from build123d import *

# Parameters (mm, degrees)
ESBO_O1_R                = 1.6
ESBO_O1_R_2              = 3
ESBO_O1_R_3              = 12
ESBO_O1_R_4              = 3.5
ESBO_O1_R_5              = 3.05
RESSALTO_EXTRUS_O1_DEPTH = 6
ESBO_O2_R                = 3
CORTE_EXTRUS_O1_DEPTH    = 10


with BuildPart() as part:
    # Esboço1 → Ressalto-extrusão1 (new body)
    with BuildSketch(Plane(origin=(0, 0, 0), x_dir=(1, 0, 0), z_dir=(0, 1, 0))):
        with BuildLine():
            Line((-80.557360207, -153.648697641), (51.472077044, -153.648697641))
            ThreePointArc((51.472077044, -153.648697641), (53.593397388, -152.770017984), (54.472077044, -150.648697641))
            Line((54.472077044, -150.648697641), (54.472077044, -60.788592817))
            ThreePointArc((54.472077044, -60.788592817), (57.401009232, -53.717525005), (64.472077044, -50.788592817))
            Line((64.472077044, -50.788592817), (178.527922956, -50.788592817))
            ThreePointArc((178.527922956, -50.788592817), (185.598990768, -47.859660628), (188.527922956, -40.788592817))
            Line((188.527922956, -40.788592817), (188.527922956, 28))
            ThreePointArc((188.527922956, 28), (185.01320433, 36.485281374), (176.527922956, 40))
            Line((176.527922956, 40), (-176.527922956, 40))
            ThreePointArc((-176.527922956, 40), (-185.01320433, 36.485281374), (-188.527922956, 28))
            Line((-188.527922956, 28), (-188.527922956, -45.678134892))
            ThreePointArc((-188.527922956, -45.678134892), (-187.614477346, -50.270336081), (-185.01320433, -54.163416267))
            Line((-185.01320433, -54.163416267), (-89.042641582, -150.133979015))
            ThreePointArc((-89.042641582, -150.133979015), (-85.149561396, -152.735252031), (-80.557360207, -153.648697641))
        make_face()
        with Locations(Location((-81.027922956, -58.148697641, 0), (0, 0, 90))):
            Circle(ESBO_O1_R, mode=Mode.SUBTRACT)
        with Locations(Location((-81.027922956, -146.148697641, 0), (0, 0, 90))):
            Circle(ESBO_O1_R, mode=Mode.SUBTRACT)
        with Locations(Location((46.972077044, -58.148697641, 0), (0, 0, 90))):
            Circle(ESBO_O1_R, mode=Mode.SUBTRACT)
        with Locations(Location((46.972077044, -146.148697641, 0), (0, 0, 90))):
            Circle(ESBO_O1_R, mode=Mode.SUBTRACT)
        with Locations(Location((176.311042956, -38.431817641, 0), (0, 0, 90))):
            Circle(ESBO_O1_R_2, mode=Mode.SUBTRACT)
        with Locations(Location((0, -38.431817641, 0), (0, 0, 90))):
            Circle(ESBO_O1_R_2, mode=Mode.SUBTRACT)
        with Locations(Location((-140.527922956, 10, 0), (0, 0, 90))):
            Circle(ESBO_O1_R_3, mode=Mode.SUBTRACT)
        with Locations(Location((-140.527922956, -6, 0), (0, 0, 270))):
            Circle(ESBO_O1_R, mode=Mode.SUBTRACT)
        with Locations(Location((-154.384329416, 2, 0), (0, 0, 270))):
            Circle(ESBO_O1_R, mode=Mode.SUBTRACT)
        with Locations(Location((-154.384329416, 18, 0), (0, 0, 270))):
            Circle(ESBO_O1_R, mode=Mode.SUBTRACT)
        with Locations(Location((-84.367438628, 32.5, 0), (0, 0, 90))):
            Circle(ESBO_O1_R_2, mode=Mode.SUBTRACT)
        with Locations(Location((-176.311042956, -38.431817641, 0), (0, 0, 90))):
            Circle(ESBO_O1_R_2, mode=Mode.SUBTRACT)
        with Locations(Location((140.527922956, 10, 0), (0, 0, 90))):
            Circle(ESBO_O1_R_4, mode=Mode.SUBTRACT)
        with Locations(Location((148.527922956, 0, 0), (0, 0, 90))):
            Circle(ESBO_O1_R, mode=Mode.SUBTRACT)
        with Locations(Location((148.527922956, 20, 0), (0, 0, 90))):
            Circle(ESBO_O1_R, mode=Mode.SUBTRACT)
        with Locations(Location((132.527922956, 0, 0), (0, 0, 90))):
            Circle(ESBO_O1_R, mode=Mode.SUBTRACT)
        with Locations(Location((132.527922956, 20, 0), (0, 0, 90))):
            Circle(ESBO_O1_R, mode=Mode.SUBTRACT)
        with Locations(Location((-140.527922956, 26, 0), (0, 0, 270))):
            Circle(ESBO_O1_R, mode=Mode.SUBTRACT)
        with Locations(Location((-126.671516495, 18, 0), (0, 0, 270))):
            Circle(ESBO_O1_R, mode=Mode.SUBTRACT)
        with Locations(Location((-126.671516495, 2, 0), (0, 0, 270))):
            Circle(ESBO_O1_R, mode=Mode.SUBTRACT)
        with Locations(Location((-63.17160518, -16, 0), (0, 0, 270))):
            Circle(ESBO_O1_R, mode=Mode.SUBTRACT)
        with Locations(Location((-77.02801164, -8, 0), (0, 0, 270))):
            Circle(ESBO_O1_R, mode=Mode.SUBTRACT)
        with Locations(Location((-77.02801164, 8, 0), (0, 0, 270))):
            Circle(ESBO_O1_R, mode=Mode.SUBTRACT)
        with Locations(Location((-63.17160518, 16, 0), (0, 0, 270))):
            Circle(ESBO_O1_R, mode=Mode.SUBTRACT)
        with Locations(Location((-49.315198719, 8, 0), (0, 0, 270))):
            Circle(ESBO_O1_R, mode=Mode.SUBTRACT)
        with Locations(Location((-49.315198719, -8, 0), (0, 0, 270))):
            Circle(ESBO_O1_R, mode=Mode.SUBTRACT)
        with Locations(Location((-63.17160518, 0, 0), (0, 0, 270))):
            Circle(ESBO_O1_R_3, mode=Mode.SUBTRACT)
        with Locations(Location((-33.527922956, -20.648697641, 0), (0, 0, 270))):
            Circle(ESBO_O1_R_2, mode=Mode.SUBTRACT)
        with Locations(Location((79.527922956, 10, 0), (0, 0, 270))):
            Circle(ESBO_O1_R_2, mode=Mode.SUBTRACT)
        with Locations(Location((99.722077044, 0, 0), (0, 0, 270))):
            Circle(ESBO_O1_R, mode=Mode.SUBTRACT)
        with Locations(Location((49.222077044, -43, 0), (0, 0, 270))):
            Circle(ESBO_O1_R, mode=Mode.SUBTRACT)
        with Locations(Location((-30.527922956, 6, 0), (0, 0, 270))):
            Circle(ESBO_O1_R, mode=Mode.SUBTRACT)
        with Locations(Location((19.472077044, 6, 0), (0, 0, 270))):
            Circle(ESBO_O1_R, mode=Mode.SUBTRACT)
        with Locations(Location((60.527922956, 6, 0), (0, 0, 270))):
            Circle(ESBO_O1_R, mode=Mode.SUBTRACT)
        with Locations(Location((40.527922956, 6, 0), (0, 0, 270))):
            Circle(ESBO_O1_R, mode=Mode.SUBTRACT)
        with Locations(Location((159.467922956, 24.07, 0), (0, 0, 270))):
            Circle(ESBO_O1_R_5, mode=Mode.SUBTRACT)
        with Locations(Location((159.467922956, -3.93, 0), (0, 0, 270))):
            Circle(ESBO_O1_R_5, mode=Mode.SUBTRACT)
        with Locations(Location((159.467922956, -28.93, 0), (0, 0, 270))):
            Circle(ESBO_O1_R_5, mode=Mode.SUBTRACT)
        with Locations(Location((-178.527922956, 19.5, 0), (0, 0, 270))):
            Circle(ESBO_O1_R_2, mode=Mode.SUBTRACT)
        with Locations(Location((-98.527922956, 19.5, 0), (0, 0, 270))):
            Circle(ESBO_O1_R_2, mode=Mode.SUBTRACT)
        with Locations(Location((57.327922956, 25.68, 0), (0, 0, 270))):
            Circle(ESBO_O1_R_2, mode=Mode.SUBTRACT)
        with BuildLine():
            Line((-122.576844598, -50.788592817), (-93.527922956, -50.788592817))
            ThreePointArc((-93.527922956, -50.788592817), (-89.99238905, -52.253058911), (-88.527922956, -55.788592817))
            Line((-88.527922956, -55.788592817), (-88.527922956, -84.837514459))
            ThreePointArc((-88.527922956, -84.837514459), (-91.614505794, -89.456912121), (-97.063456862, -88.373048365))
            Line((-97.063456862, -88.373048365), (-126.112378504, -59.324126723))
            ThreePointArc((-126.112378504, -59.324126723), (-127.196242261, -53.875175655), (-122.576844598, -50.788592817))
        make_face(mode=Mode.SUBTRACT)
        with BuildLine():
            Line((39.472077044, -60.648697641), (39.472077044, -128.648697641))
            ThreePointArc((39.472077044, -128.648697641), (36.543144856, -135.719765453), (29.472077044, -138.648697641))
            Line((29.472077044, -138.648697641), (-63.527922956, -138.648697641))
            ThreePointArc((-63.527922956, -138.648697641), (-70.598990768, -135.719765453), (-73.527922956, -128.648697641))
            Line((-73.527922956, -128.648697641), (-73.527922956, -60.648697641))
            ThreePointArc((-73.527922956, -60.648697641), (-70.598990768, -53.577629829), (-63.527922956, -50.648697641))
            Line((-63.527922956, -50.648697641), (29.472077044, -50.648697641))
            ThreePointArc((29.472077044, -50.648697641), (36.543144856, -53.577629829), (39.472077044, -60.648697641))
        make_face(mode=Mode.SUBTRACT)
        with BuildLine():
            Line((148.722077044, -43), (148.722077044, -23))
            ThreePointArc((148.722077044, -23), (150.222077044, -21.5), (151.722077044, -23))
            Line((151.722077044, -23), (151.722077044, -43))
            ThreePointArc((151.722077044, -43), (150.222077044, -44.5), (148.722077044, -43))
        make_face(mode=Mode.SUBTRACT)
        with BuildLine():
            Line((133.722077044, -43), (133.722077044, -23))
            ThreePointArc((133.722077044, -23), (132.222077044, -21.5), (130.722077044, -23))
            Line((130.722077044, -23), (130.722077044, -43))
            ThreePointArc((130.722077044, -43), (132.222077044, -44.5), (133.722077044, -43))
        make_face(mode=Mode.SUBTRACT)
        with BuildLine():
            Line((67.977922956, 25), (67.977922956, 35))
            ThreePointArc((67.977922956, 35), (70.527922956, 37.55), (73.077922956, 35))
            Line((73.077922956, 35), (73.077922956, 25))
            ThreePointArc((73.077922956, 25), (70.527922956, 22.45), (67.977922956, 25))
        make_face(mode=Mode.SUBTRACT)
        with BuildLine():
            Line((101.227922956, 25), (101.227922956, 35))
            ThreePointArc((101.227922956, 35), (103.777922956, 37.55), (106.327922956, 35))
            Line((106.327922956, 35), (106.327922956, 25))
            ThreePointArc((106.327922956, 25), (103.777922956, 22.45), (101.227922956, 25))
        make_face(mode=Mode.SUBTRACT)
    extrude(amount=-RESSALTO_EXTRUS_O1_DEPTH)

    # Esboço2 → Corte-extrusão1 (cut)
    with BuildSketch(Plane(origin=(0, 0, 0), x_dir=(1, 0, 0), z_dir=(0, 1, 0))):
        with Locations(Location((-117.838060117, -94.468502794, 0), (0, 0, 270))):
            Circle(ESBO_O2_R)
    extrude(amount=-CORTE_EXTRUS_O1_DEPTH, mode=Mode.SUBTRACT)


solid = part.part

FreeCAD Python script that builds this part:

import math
import FreeCAD as App
import Part
import Sketcher
from FreeCAD import Vector
Q = App.Units.Quantity

doc = App.newDocument("Part")
body = doc.addObject("PartDesign::Body", "Body")

# Sketch on XZ plane
sketch1 = body.newObject("Sketcher::SketchObject", "Sketch")
sketch1.AttachmentSupport = (doc.getObject("XZ_Plane"), [""])
sketch1.MapMode = "FlatFace"
sketch1.addGeometry(Part.LineSegment(Vector(-80.6, 153.6, 0), Vector(51.5, 153.6, 0)), False)
sketch1.addGeometry(Part.ArcOfCircle(Part.Circle(Vector(51.5, 150.6, 0), Vector(0, 0, 1), 3), math.radians(0), math.radians(90)), False)
sketch1.addGeometry(Part.LineSegment(Vector(54.5, 150.6, 0), Vector(54.5, 60.8, 0)), False)
sketch1.addGeometry(Part.ArcOfCircle(Part.Circle(Vector(64.5, 60.8, 0), Vector(0, 0, 1), 10), math.radians(180), math.radians(270)), False)
sketch1.addGeometry(Part.LineSegment(Vector(64.5, 50.8, 0), Vector(178.5, 50.8, 0)), False)
sketch1.addGeometry(Part.ArcOfCircle(Part.Circle(Vector(178.5, 40.8, 0), Vector(0, 0, 1), 10), math.radians(0), math.radians(90)), False)
sketch1.addGeometry(Part.LineSegment(Vector(188.5, 40.8, 0), Vector(188.5, -28, 0)), False)
sketch1.addGeometry(Part.ArcOfCircle(Part.Circle(Vector(176.5, -28, 0), Vector(0, 0, 1), 12), math.radians(-90), math.radians(0)), False)
sketch1.addGeometry(Part.LineSegment(Vector(176.5, -40, 0), Vector(-176.5, -40, 0)), False)
sketch1.addGeometry(Part.ArcOfCircle(Part.Circle(Vector(-176.5, -28, 0), Vector(0, 0, 1), 12), math.radians(-180), math.radians(-90)), False)
sketch1.addGeometry(Part.LineSegment(Vector(-188.5, -28, 0), Vector(-188.5, 45.7, 0)), False)
sketch1.addGeometry(Part.ArcOfCircle(Part.Circle(Vector(-176.5, 45.7, 0), Vector(0, 0, 1), 12), math.radians(135), math.radians(180)), False)
sketch1.addGeometry(Part.LineSegment(Vector(-185, 54.2, 0), Vector(-89, 150.1, 0)), False)
sketch1.addGeometry(Part.ArcOfCircle(Part.Circle(Vector(-80.6, 141.6, 0), Vector(0, 0, 1), 12), math.radians(90), math.radians(135)), False)
sketch1.addGeometry(Part.Circle(Vector(-81, 146.1, 0), Vector(0, 0, 1), 1.6), False)
sketch1.addGeometry(Part.ArcOfCircle(Part.Circle(Vector(-122.6, 55.8, 0), Vector(0, 0, 1), 5), math.radians(135), math.radians(270)), False)
sketch1.addGeometry(Part.LineSegment(Vector(-122.6, 50.8, 0), Vector(-93.5, 50.8, 0)), False)
sketch1.addGeometry(Part.ArcOfCircle(Part.Circle(Vector(-93.5, 55.8, 0), Vector(0, 0, 1), 5), math.radians(-90), math.radians(0)), False)
sketch1.addGeometry(Part.LineSegment(Vector(-88.5, 55.8, 0), Vector(-88.5, 84.8, 0)), False)
sketch1.addGeometry(Part.ArcOfCircle(Part.Circle(Vector(-93.5, 84.8, 0), Vector(0, 0, 1), 5), math.radians(0), math.radians(135)), False)
sketch1.addGeometry(Part.LineSegment(Vector(-97.1, 88.4, 0), Vector(-126.1, 59.3, 0)), False)
sketch1.addGeometry(Part.ArcOfCircle(Part.Circle(Vector(29.5, 60.6, 0), Vector(0, 0, 1), 10), math.radians(-90), math.radians(0)), False)
sketch1.addGeometry(Part.LineSegment(Vector(39.5, 60.6, 0), Vector(39.5, 128.6, 0)), False)
sketch1.addGeometry(Part.ArcOfCircle(Part.Circle(Vector(29.5, 128.6, 0), Vector(0, 0, 1), 10), math.radians(0), math.radians(90)), False)
sketch1.addGeometry(Part.LineSegment(Vector(29.5, 138.6, 0), Vector(-63.5, 138.6, 0)), False)
sketch1.addGeometry(Part.ArcOfCircle(Part.Circle(Vector(-63.5, 128.6, 0), Vector(0, 0, 1), 10), math.radians(90), math.radians(180)), False)
sketch1.addGeometry(Part.LineSegment(Vector(-73.5, 128.6, 0), Vector(-73.5, 60.6, 0)), False)
sketch1.addGeometry(Part.ArcOfCircle(Part.Circle(Vector(-63.5, 60.6, 0), Vector(0, 0, 1), 10), math.radians(180), math.radians(270)), False)
sketch1.addGeometry(Part.LineSegment(Vector(-63.5, 50.6, 0), Vector(29.5, 50.6, 0)), False)
sketch1.addGeometry(Part.Circle(Vector(-81, 58.1, 0), Vector(0, 0, 1), 1.6), False)
sketch1.addGeometry(Part.Circle(Vector(47, 146.1, 0), Vector(0, 0, 1), 1.6), False)
sketch1.addGeometry(Part.Circle(Vector(47, 58.1, 0), Vector(0, 0, 1), 1.6), False)
sketch1.addGeometry(Part.Circle(Vector(-176.3, 38.4, 0), Vector(0, 0, 1), 3), False)
sketch1.addGeometry(Part.Circle(Vector(-63.2, 16, 0), Vector(0, 0, 1), 1.6), False)
sketch1.addGeometry(Part.Circle(Vector(-33.5, 20.6, 0), Vector(0, 0, 1), 3), False)
sketch1.addGeometry(Part.Circle(Vector(-140.5, 6, 0), Vector(0, 0, 1), 1.6), False)
sketch1.addGeometry(Part.Circle(Vector(-154.4, -2, 0), Vector(0, 0, 1), 1.6), False)
sketch1.addGeometry(Part.Circle(Vector(-140.5, -10, 0), Vector(0, 0, 1), 12), False)
sketch1.addGeometry(Part.Circle(Vector(-126.7, -2, 0), Vector(0, 0, 1), 1.6), False)
sketch1.addGeometry(Part.Circle(Vector(-178.5, -19.5, 0), Vector(0, 0, 1), 3), False)
sketch1.addGeometry(Part.Circle(Vector(-154.4, -18, 0), Vector(0, 0, 1), 1.6), False)
sketch1.addGeometry(Part.Circle(Vector(-140.5, -26, 0), Vector(0, 0, 1), 1.6), False)
sketch1.addGeometry(Part.Circle(Vector(-126.7, -18, 0), Vector(0, 0, 1), 1.6), False)
sketch1.addGeometry(Part.Circle(Vector(-98.5, -19.5, 0), Vector(0, 0, 1), 3), False)
sketch1.addGeometry(Part.Circle(Vector(-77, 8, 0), Vector(0, 0, 1), 1.6), False)
sketch1.addGeometry(Part.Circle(Vector(-49.3, 8, 0), Vector(0, 0, 1), 1.6), False)
sketch1.addGeometry(Part.Circle(Vector(-63.2, 0, 0), Vector(0, 0, 1), 12), False)
sketch1.addGeometry(Part.Circle(Vector(-77, -8, 0), Vector(0, 0, 1), 1.6), False)
sketch1.addGeometry(Part.Circle(Vector(-49.3, -8, 0), Vector(0, 0, 1), 1.6), False)
sketch1.addGeometry(Part.Circle(Vector(-30.5, -6, 0), Vector(0, 0, 1), 1.6), False)
sketch1.addGeometry(Part.Circle(Vector(-63.2, -16, 0), Vector(0, 0, 1), 1.6), False)
sketch1.addGeometry(Part.Circle(Vector(-84.4, -32.5, 0), Vector(0, 0, 1), 3), False)
sketch1.addGeometry(Part.Circle(Vector(0, 38.4, 0), Vector(0, 0, 1), 3), False)
sketch1.addGeometry(Part.Circle(Vector(49.2, 43, 0), Vector(0, 0, 1), 1.6), False)
sketch1.addGeometry(Part.LineSegment(Vector(133.7, 23, 0), Vector(133.7, 43, 0)), False)
sketch1.addGeometry(Part.ArcOfCircle(Part.Circle(Vector(132.2, 43, 0), Vector(0, 0, 1), 1.5), math.radians(0), math.radians(180)), False)
sketch1.addGeometry(Part.LineSegment(Vector(130.7, 43, 0), Vector(130.7, 23, 0)), False)
sketch1.addGeometry(Part.ArcOfCircle(Part.Circle(Vector(132.2, 23, 0), Vector(0, 0, 1), 1.5), math.radians(180), math.radians(360)), False)
sketch1.addGeometry(Part.ArcOfCircle(Part.Circle(Vector(150.2, 43, 0), Vector(0, 0, 1), 1.5), math.radians(0), math.radians(180)), False)
sketch1.addGeometry(Part.LineSegment(Vector(148.7, 43, 0), Vector(148.7, 23, 0)), False)
sketch1.addGeometry(Part.ArcOfCircle(Part.Circle(Vector(150.2, 23, 0), Vector(0, 0, 1), 1.5), math.radians(180), math.radians(360)), False)
sketch1.addGeometry(Part.LineSegment(Vector(151.7, 23, 0), Vector(151.7, 43, 0)), False)
sketch1.addGeometry(Part.Circle(Vector(176.3, 38.4, 0), Vector(0, 0, 1), 3), False)
sketch1.addGeometry(Part.Circle(Vector(159.5, 28.9, 0), Vector(0, 0, 1), 3), False)
sketch1.addGeometry(Part.Circle(Vector(19.5, -6, 0), Vector(0, 0, 1), 1.6), False)
sketch1.addGeometry(Part.Circle(Vector(40.5, -6, 0), Vector(0, 0, 1), 1.6), False)
sketch1.addGeometry(Part.Circle(Vector(60.5, -6, 0), Vector(0, 0, 1), 1.6), False)
sketch1.addGeometry(Part.Circle(Vector(79.5, -10, 0), Vector(0, 0, 1), 3), False)
sketch1.addGeometry(Part.Circle(Vector(57.3, -25.7, 0), Vector(0, 0, 1), 3), False)
sketch1.addGeometry(Part.ArcOfCircle(Part.Circle(Vector(70.5, -25, 0), Vector(0, 0, 1), 2.5), math.radians(0), math.radians(180)), False)
sketch1.addGeometry(Part.LineSegment(Vector(68, -25, 0), Vector(68, -35, 0)), False)
sketch1.addGeometry(Part.ArcOfCircle(Part.Circle(Vector(70.5, -35, 0), Vector(0, 0, 1), 2.5), math.radians(180), math.radians(360)), False)
sketch1.addGeometry(Part.LineSegment(Vector(73.1, -35, 0), Vector(73.1, -25, 0)), False)
sketch1.addGeometry(Part.Circle(Vector(99.7, 0, 0), Vector(0, 0, 1), 1.6), False)
sketch1.addGeometry(Part.Circle(Vector(132.5, 0, 0), Vector(0, 0, 1), 1.6), False)
sketch1.addGeometry(Part.Circle(Vector(148.5, 0, 0), Vector(0, 0, 1), 1.6), False)
sketch1.addGeometry(Part.Circle(Vector(159.5, 3.9, 0), Vector(0, 0, 1), 3), False)
sketch1.addGeometry(Part.Circle(Vector(140.5, -10, 0), Vector(0, 0, 1), 3.5), False)
sketch1.addGeometry(Part.Circle(Vector(132.5, -20, 0), Vector(0, 0, 1), 1.6), False)
sketch1.addGeometry(Part.ArcOfCircle(Part.Circle(Vector(103.8, -25, 0), Vector(0, 0, 1), 2.5), math.radians(0), math.radians(180)), False)
sketch1.addGeometry(Part.LineSegment(Vector(101.2, -25, 0), Vector(101.2, -35, 0)), False)
sketch1.addGeometry(Part.ArcOfCircle(Part.Circle(Vector(103.8, -35, 0), Vector(0, 0, 1), 2.5), math.radians(180), math.radians(360)), False)
sketch1.addGeometry(Part.LineSegment(Vector(106.3, -35, 0), Vector(106.3, -25, 0)), False)
sketch1.addGeometry(Part.Circle(Vector(148.5, -20, 0), Vector(0, 0, 1), 1.6), False)
sketch1.addGeometry(Part.Circle(Vector(159.5, -24.1, 0), Vector(0, 0, 1), 3), False)
sketch1.addConstraint(Sketcher.Constraint("Tangent", 0, 2, 1, 2))
sketch1.addConstraint(Sketcher.Constraint("Tangent", 1, 1, 2, 1))
sketch1.addConstraint(Sketcher.Constraint("Tangent", 2, 2, 3, 1))
sketch1.addConstraint(Sketcher.Constraint("Tangent", 3, 2, 4, 1))
sketch1.addConstraint(Sketcher.Constraint("Tangent", 4, 2, 5, 2))
sketch1.addConstraint(Sketcher.Constraint("Tangent", 5, 1, 6, 1))
sketch1.addConstraint(Sketcher.Constraint("Tangent", 6, 2, 7, 2))
sketch1.addConstraint(Sketcher.Constraint("Tangent", 7, 1, 8, 1))
sketch1.addConstraint(Sketcher.Constraint("Tangent", 8, 2, 9, 2))
sketch1.addConstraint(Sketcher.Constraint("Tangent", 9, 1, 10, 1))
sketch1.addConstraint(Sketcher.Constraint("Tangent", 10, 2, 11, 2))
sketch1.addConstraint(Sketcher.Constraint("Tangent", 11, 1, 12, 1))
sketch1.addConstraint(Sketcher.Constraint("Tangent", 12, 2, 13, 2))
sketch1.addConstraint(Sketcher.Constraint("Tangent", 13, 1, 0, 1))
sketch1.addConstraint(Sketcher.Constraint("Tangent", 15, 2, 16, 1))
sketch1.addConstraint(Sketcher.Constraint("Tangent", 16, 2, 17, 1))
sketch1.addConstraint(Sketcher.Constraint("Tangent", 17, 2, 18, 1))
sketch1.addConstraint(Sketcher.Constraint("Tangent", 18, 2, 19, 1))
sketch1.addConstraint(Sketcher.Constraint("Tangent", 19, 2, 20, 1))
sketch1.addConstraint(Sketcher.Constraint("Tangent", 20, 2, 15, 1))
sketch1.addConstraint(Sketcher.Constraint("Tangent", 21, 2, 22, 1))
sketch1.addConstraint(Sketcher.Constraint("Tangent", 22, 2, 23, 1))
sketch1.addConstraint(Sketcher.Constraint("Tangent", 23, 2, 24, 1))
sketch1.addConstraint(Sketcher.Constraint("Tangent", 24, 2, 25, 1))
sketch1.addConstraint(Sketcher.Constraint("Tangent", 25, 2, 26, 1))
sketch1.addConstraint(Sketcher.Constraint("Tangent", 26, 2, 27, 1))
sketch1.addConstraint(Sketcher.Constraint("Tangent", 27, 2, 28, 1))
sketch1.addConstraint(Sketcher.Constraint("Tangent", 28, 2, 21, 1))
sketch1.addConstraint(Sketcher.Constraint("Tangent", 54, 2, 55, 1))
sketch1.addConstraint(Sketcher.Constraint("Tangent", 55, 2, 56, 1))
sketch1.addConstraint(Sketcher.Constraint("Tangent", 56, 2, 57, 1))
sketch1.addConstraint(Sketcher.Constraint("Tangent", 57, 2, 54, 1))
sketch1.addConstraint(Sketcher.Constraint("Tangent", 58, 2, 59, 1))
sketch1.addConstraint(Sketcher.Constraint("Tangent", 59, 2, 60, 1))
sketch1.addConstraint(Sketcher.Constraint("Tangent", 60, 2, 61, 1))
sketch1.addConstraint(Sketcher.Constraint("Tangent", 61, 2, 58, 1))
sketch1.addConstraint(Sketcher.Constraint("Tangent", 69, 2, 70, 1))
sketch1.addConstraint(Sketcher.Constraint("Tangent", 70, 2, 71, 1))
sketch1.addConstraint(Sketcher.Constraint("Tangent", 71, 2, 72, 1))
sketch1.addConstraint(Sketcher.Constraint("Tangent", 72, 2, 69, 1))
sketch1.addConstraint(Sketcher.Constraint("Tangent", 79, 2, 80, 1))
sketch1.addConstraint(Sketcher.Constraint("Tangent", 80, 2, 81, 1))
sketch1.addConstraint(Sketcher.Constraint("Tangent", 81, 2, 82, 1))
sketch1.addConstraint(Sketcher.Constraint("Tangent", 82, 2, 79, 1))
sketch1.addConstraint(Sketcher.Constraint("Horizontal", 0))
sketch1.addConstraint(Sketcher.Constraint("Vertical", 2))
sketch1.addConstraint(Sketcher.Constraint("Horizontal", 4))
sketch1.addConstraint(Sketcher.Constraint("Vertical", 6))
sketch1.addConstraint(Sketcher.Constraint("Horizontal", 8))
sketch1.addConstraint(Sketcher.Constraint("Vertical", 10))
sketch1.addConstraint(Sketcher.Constraint("Horizontal", 16))
sketch1.addConstraint(Sketcher.Constraint("Vertical", 18))
sketch1.addConstraint(Sketcher.Constraint("Vertical", 22))
sketch1.addConstraint(Sketcher.Constraint("Horizontal", 24))
sketch1.addConstraint(Sketcher.Constraint("Vertical", 26))
sketch1.addConstraint(Sketcher.Constraint("Horizontal", 28))
sketch1.addConstraint(Sketcher.Constraint("Vertical", 54))
sketch1.addConstraint(Sketcher.Constraint("Vertical", 56))
sketch1.addConstraint(Sketcher.Constraint("Vertical", 59))
sketch1.addConstraint(Sketcher.Constraint("Vertical", 61))
sketch1.addConstraint(Sketcher.Constraint("Vertical", 70))
sketch1.addConstraint(Sketcher.Constraint("Vertical", 72))
sketch1.addConstraint(Sketcher.Constraint("Vertical", 80))
sketch1.addConstraint(Sketcher.Constraint("Vertical", 82))
sketch1.addConstraint(Sketcher.Constraint("Equal", 3, 5))
sketch1.addConstraint(Sketcher.Constraint("Equal", 7, 9))
sketch1.addConstraint(Sketcher.Constraint("Equal", 9, 11))
sketch1.addConstraint(Sketcher.Constraint("Equal", 11, 13))
sketch1.addConstraint(Sketcher.Constraint("Equal", 15, 17))
sketch1.addConstraint(Sketcher.Constraint("Equal", 17, 19))
sketch1.addConstraint(Sketcher.Constraint("Equal", 5, 21))
sketch1.addConstraint(Sketcher.Constraint("Equal", 21, 23))
sketch1.addConstraint(Sketcher.Constraint("Equal", 23, 25))
sketch1.addConstraint(Sketcher.Constraint("Equal", 25, 27))
sketch1.addConstraint(Sketcher.Constraint("Equal", 14, 29))
sketch1.addConstraint(Sketcher.Constraint("Equal", 29, 30))
sketch1.addConstraint(Sketcher.Constraint("Equal", 30, 31))
sketch1.addConstraint(Sketcher.Constraint("Equal", 1, 32))
sketch1.addConstraint(Sketcher.Constraint("Equal", 31, 33))
sketch1.addConstraint(Sketcher.Constraint("Equal", 32, 34))
sketch1.addConstraint(Sketcher.Constraint("Equal", 33, 35))
sketch1.addConstraint(Sketcher.Constraint("Equal", 35, 36))
sketch1.addConstraint(Sketcher.Constraint("Equal", 13, 37))
sketch1.addConstraint(Sketcher.Constraint("Equal", 36, 38))
sketch1.addConstraint(Sketcher.Constraint("Equal", 34, 39))
sketch1.addConstraint(Sketcher.Constraint("Equal", 38, 40))
sketch1.addConstraint(Sketcher.Constraint("Equal", 40, 41))
sketch1.addConstraint(Sketcher.Constraint("Equal", 41, 42))
sketch1.addConstraint(Sketcher.Constraint("Equal", 39, 43))
sketch1.addConstraint(Sketcher.Constraint("Equal", 42, 44))
sketch1.addConstraint(Sketcher.Constraint("Equal", 44, 45))
sketch1.addConstraint(Sketcher.Constraint("Equal", 37, 46))
sketch1.addConstraint(Sketcher.Constraint("Equal", 45, 47))
sketch1.addConstraint(Sketcher.Constraint("Equal", 47, 48))
sketch1.addConstraint(Sketcher.Constraint("Equal", 48, 49))
sketch1.addConstraint(Sketcher.Constraint("Equal", 49, 50))
sketch1.addConstraint(Sketcher.Constraint("Equal", 43, 51))
sketch1.addConstraint(Sketcher.Constraint("Equal", 51, 52))
sketch1.addConstraint(Sketcher.Constraint("Equal", 50, 53))
sketch1.addConstraint(Sketcher.Constraint("Equal", 57, 58))
sketch1.addConstraint(Sketcher.Constraint("Equal", 52, 62))
sketch1.addConstraint(Sketcher.Constraint("Equal", 53, 64))
sketch1.addConstraint(Sketcher.Constraint("Equal", 64, 65))
sketch1.addConstraint(Sketcher.Constraint("Equal", 65, 66))
sketch1.addConstraint(Sketcher.Constraint("Equal", 62, 67))
sketch1.addConstraint(Sketcher.Constraint("Equal", 67, 68))
sketch1.addConstraint(Sketcher.Constraint("Equal", 66, 73))
sketch1.addConstraint(Sketcher.Constraint("Equal", 73, 74))
sketch1.addConstraint(Sketcher.Constraint("Equal", 74, 75))
sketch1.addConstraint(Sketcher.Constraint("Equal", 63, 76))
sketch1.addConstraint(Sketcher.Constraint("Equal", 75, 78))
sketch1.addConstraint(Sketcher.Constraint("Equal", 71, 79))
sketch1.addConstraint(Sketcher.Constraint("Equal", 78, 83))
sketch1.addConstraint(Sketcher.Constraint("Equal", 76, 84))
sketch1.addConstraint(Sketcher.Constraint("Symmetric", 32, 3, 62, 3, -2))
sketch1.addConstraint(Sketcher.Constraint("Symmetric", 37, 3, 77, 3, -2))
sketch1.addConstraint(Sketcher.Constraint("Symmetric", 44, 3, 47, 3, -1))
sketch1.addConstraint(Sketcher.Constraint("Symmetric", 45, 3, 48, 3, -1))
sketch1.addConstraint(Sketcher.Constraint("Symmetric", 33, 3, 50, 3, -1))
sketch1.addConstraint(Sketcher.Constraint("PointOnObject", 46, 3, -1))
sketch1.addConstraint(Sketcher.Constraint("PointOnObject", 52, 3, -2))
sketch1.addConstraint(Sketcher.Constraint("PointOnObject", 73, 3, -1))
sketch1.addConstraint(Sketcher.Constraint("PointOnObject", 74, 3, -1))
sketch1.addConstraint(Sketcher.Constraint("PointOnObject", 75, 3, -1))
sketch1.addConstraint(Sketcher.Constraint("Parallel", 12, 20))
sketch1.addConstraint(Sketcher.Constraint("Horizontal", 14, 3, 30, 3))
sketch1.addConstraint(Sketcher.Constraint("Horizontal", 29, 3, 31, 3))
sketch1.addConstraint(Sketcher.Constraint("Horizontal", 36, 3, 38, 3))
sketch1.addConstraint(Sketcher.Constraint("Horizontal", 40, 3, 42, 3))
sketch1.addConstraint(Sketcher.Constraint("Horizontal", 39, 3, 43, 3))
sketch1.addConstraint(Sketcher.Constraint("Horizontal", 44, 3, 45, 3))
sketch1.addConstraint(Sketcher.Constraint("Horizontal", 32, 3, 52, 3))
sketch1.addConstraint(Sketcher.Constraint("Horizontal", 53, 3, 55, 3))
sketch1.addConstraint(Sketcher.Constraint("Horizontal", 55, 3, 58, 3))
sketch1.addConstraint(Sketcher.Constraint("Horizontal", 57, 3, 60, 3))
sketch1.addConstraint(Sketcher.Constraint("Horizontal", 49, 3, 64, 3))
sketch1.addConstraint(Sketcher.Constraint("Horizontal", 64, 3, 65, 3))
sketch1.addConstraint(Sketcher.Constraint("Horizontal", 65, 3, 66, 3))
sketch1.addConstraint(Sketcher.Constraint("Horizontal", 37, 3, 67, 3))
sketch1.addConstraint(Sketcher.Constraint("Horizontal", 69, 3, 79, 3))
sketch1.addConstraint(Sketcher.Constraint("Horizontal", 71, 3, 81, 3))
sketch1.addConstraint(Sketcher.Constraint("Horizontal", 78, 3, 83, 3))
sketch1.addConstraint(Sketcher.Constraint("Horizontal", 4, 2, 15, 2))
sketch1.addConstraint(Sketcher.Constraint("Vertical", 14, 3, 29, 3))
sketch1.addConstraint(Sketcher.Constraint("Vertical", 30, 3, 31, 3))
sketch1.addConstraint(Sketcher.Constraint("Vertical", 35, 3, 37, 3))
sketch1.addConstraint(Sketcher.Constraint("Vertical", 36, 3, 40, 3))
sketch1.addConstraint(Sketcher.Constraint("Vertical", 37, 3, 41, 3))
sketch1.addConstraint(Sketcher.Constraint("Vertical", 38, 3, 42, 3))
sketch1.addConstraint(Sketcher.Constraint("Vertical", 33, 3, 46, 3))
sketch1.addConstraint(Sketcher.Constraint("Vertical", 63, 3, 76, 3))
sketch1.addConstraint(Sketcher.Constraint("Vertical", 74, 3, 78, 3))
sketch1.addConstraint(Sketcher.Constraint("Vertical", 75, 3, 83, 3))
sketch1.addConstraint(Sketcher.Constraint("Vertical", 76, 3, 84, 3))
sketch1.addConstraint(Sketcher.Constraint("Equal", 16, 18))
sketch1.addConstraint(Sketcher.Constraint("Diameter", 32, Q("6 mm")))
sketch1.addConstraint(Sketcher.Constraint("Diameter", 37, Q("24 mm")))
sketch1.addConstraint(Sketcher.Constraint("Diameter", 77, Q("7 mm")))
sketch1.addConstraint(Sketcher.Constraint("Radius", 3, Q("10 mm")))
sketch1.addConstraint(Sketcher.Constraint("Radius", 15, Q("5 mm")))
sketch1.addConstraint(Sketcher.Constraint("Diameter", 14, Q("3.2 mm")))
sketch1.addConstraint(Sketcher.Constraint("Diameter", 63, Q("6.1 mm")))
sketch1.addConstraint(Sketcher.Constraint("Radius", 55, Q("1.5 mm")))
sketch1.addConstraint(Sketcher.Constraint("DistanceX", 24, 2, 24, 1, Q("93 mm")))
sketch1.addConstraint(Sketcher.Constraint("DistanceY", 22, 1, 22, 2, Q("68 mm")))
sketch1.addConstraint(Sketcher.Constraint("DistanceY", 54, 1, 54, 2, Q("20 mm")))
sketch1.addConstraint(Sketcher.Constraint("DistanceY", 70, 2, 70, 1, Q("10 mm")))
sketch1.addConstraint(Sketcher.Constraint("Radius", 69, Q("2.55 mm")))
sketch1.addConstraint(Sketcher.Constraint("DistanceY", 7, 3, -1, 1, Q("28 mm")))
sketch1.addConstraint(Sketcher.Constraint("DistanceY", -1, 1, 33, 3, Q("16 mm")))
sketch1.addConstraint(Sketcher.Constraint("DistanceY", -1, 1, 35, 3, Q("6 mm")))
sketch1.addConstraint(Sketcher.Constraint("DistanceY", 36, 3, -1, 1, Q("2 mm")))
sketch1.addConstraint(Sketcher.Constraint("DistanceY", 37, 3, -1, 1, Q("10 mm")))
sketch1.addConstraint(Sketcher.Constraint("DistanceY", 40, 3, -1, 1, Q("18 mm")))
sketch1.addConstraint(Sketcher.Constraint("DistanceY", 41, 3, -1, 1, Q("26 mm")))
sketch1.addConstraint(Sketcher.Constraint("DistanceY", -1, 1, 44, 3, Q("8 mm")))
sketch1.addConstraint(Sketcher.Constraint("DistanceY", 49, 3, -1, 1, Q("6 mm")))
sketch1.addConstraint(Sketcher.Constraint("DistanceY", -1, 1, 53, 3, Q("43 mm")))
sketch1.addConstraint(Sketcher.Constraint("DistanceY", 69, 3, -1, 1, Q("25 mm")))
sketch1.addConstraint(Sketcher.Constraint("DistanceY", 78, 3, -1, 1, Q("20 mm")))
sketch1.addConstraint(Sketcher.Constraint("DistanceY", 39, 3, -1, 1, Q("19.5 mm")))
sketch1.addConstraint(Sketcher.Constraint("DistanceY", 51, 3, -1, 1, Q("32.5 mm")))
sketch1.addConstraint(Sketcher.Constraint("DistanceY", -1, 1, 63, 3, Q("28.93 mm")))
sketch1.addConstraint(Sketcher.Constraint("DistanceY", 68, 3, -1, 1, Q("25.68 mm")))
sketch1.addConstraint(Sketcher.Constraint("DistanceY", -1, 1, 76, 3, Q("3.93 mm")))
sketch1.addConstraint(Sketcher.Constraint("DistanceY", 84, 3, -1, 1, Q("24.07 mm")))
sketch1.addConstraint(Sketcher.Constraint("DistanceX", 16, 1, 16, 2, Q("29.048922 mm")))
sketch1.addConstraint(Sketcher.Constraint("DistanceX", 45, 3, -1, 1, Q("49.315199 mm")))
sketch1.addConstraint(Sketcher.Constraint("Distance", 12, Q("135.722871 mm")))
sketch1.addConstraint(Sketcher.Constraint("DistanceX", 0, 1, 0, 2, Q("132.029437 mm")))
sketch1.addConstraint(Sketcher.Constraint("DistanceX", 4, 1, 4, 2, Q("114.055846 mm")))
sketch1.addConstraint(Sketcher.Constraint("DistanceY", 2, 2, 2, 1, Q("89.860105 mm")))
sketch1.addConstraint(Sketcher.Constraint("DistanceY", 6, 2, 6, 1, Q("68.788593 mm")))
sketch1.addConstraint(Sketcher.Constraint("DistanceX", 13, 3, -1, 1, Q("80.55736 mm")))
sketch1.addConstraint(Sketcher.Constraint("DistanceX", 36, 3, -1, 1, Q("154.384329 mm")))
sketch1.addConstraint(Sketcher.Constraint("DistanceX", 44, 3, -1, 1, Q("77.028012 mm")))
sketch1.addConstraint(Sketcher.Constraint("DistanceX", 51, 3, -1, 1, Q("84.367439 mm")))
sketch1.addConstraint(Sketcher.Constraint("DistanceX", 20, 2, -1, 1, Q("126.112379 mm")))
sketch1.addConstraint(Sketcher.Constraint("DistanceX", 14, 3, -1, 1, Q("81.027923 mm")))
sketch1.addConstraint(Sketcher.Constraint("DistanceY", -1, 1, 14, 3, Q("146.148698 mm")))
sketch1.addConstraint(Sketcher.Constraint("DistanceX", -1, 1, 21, 3, Q("29.472077 mm")))
sketch1.addConstraint(Sketcher.Constraint("DistanceY", -1, 1, 21, 3, Q("60.648698 mm")))
sketch1.addConstraint(Sketcher.Constraint("DistanceY", -1, 1, 29, 3, Q("58.148698 mm")))
sketch1.addConstraint(Sketcher.Constraint("DistanceX", -1, 1, 30, 3, Q("46.972077 mm")))
sketch1.addConstraint(Sketcher.Constraint("DistanceX", 32, 3, -1, 1, Q("176.311043 mm")))
sketch1.addConstraint(Sketcher.Constraint("DistanceY", -1, 1, 32, 3, Q("38.431818 mm")))
sketch1.addConstraint(Sketcher.Constraint("DistanceX", 33, 3, -1, 1, Q("63.171605 mm")))
sketch1.addConstraint(Sketcher.Constraint("DistanceX", 34, 3, -1, 1, Q("33.527923 mm")))
sketch1.addConstraint(Sketcher.Constraint("DistanceY", -1, 1, 34, 3, Q("20.648698 mm")))
sketch1.addConstraint(Sketcher.Constraint("DistanceX", 35, 3, -1, 1, Q("140.527923 mm")))
sketch1.addConstraint(Sketcher.Constraint("DistanceX", 38, 3, -1, 1, Q("126.671516 mm")))
sketch1.addConstraint(Sketcher.Constraint("DistanceX", 39, 3, -1, 1, Q("178.527923 mm")))
sketch1.addConstraint(Sketcher.Constraint("DistanceX", 43, 3, -1, 1, Q("98.527923 mm")))
sketch1.addConstraint(Sketcher.Constraint("DistanceX", 49, 3, -1, 1, Q("30.527923 mm")))
sketch1.addConstraint(Sketcher.Constraint("DistanceX", -1, 1, 53, 3, Q("49.222077 mm")))
sketch1.addConstraint(Sketcher.Constraint("DistanceX", -1, 1, 55, 3, Q("132.222077 mm")))
sketch1.addConstraint(Sketcher.Constraint("DistanceX", -1, 1, 58, 3, Q("150.222077 mm")))
sketch1.addConstraint(Sketcher.Constraint("DistanceX", -1, 1, 63, 3, Q("159.467923 mm")))
sketch1.addConstraint(Sketcher.Constraint("DistanceX", -1, 1, 64, 3, Q("19.472077 mm")))
sketch1.addConstraint(Sketcher.Constraint("DistanceX", -1, 1, 65, 3, Q("40.527923 mm")))
sketch1.addConstraint(Sketcher.Constraint("DistanceX", -1, 1, 66, 3, Q("60.527923 mm")))
sketch1.addConstraint(Sketcher.Constraint("DistanceX", -1, 1, 67, 3, Q("79.527923 mm")))
sketch1.addConstraint(Sketcher.Constraint("DistanceX", -1, 1, 68, 3, Q("57.327923 mm")))
sketch1.addConstraint(Sketcher.Constraint("DistanceX", -1, 1, 69, 3, Q("70.527923 mm")))
sketch1.addConstraint(Sketcher.Constraint("DistanceX", -1, 1, 73, 3, Q("99.722077 mm")))
sketch1.addConstraint(Sketcher.Constraint("DistanceX", -1, 1, 74, 3, Q("132.527923 mm")))
sketch1.addConstraint(Sketcher.Constraint("DistanceX", -1, 1, 75, 3, Q("148.527923 mm")))
sketch1.addConstraint(Sketcher.Constraint("DistanceX", -1, 1, 79, 3, Q("103.777923 mm")))
pad1 = body.newObject("PartDesign::Pad", "Pad")
pad1.Profile = sketch1
pad1.Length = 6

# Sketch on XZ plane
sketch2 = body.newObject("Sketcher::SketchObject", "Sketch001")
sketch2.AttachmentSupport = (doc.getObject("XZ_Plane"), [""])
sketch2.MapMode = "FlatFace"
sketch2.addGeometry(Part.Circle(Vector(-117.8, 94.5, 0), Vector(0, 0, 1), 3), False)
sketch2.addConstraint(Sketcher.Constraint("Diameter", 0, Q("6 mm")))
sketch2.addConstraint(Sketcher.Constraint("DistanceX", 0, 3, -1, 1, Q("117.83806 mm")))
sketch2.addConstraint(Sketcher.Constraint("DistanceY", -1, 1, 0, 3, Q("94.468503 mm")))
pocket1 = body.newObject("PartDesign::Pocket", "Pocket")
pocket1.Profile = sketch2
pocket1.Length = 10
pocket1.Reversed = True

doc.recompute()
